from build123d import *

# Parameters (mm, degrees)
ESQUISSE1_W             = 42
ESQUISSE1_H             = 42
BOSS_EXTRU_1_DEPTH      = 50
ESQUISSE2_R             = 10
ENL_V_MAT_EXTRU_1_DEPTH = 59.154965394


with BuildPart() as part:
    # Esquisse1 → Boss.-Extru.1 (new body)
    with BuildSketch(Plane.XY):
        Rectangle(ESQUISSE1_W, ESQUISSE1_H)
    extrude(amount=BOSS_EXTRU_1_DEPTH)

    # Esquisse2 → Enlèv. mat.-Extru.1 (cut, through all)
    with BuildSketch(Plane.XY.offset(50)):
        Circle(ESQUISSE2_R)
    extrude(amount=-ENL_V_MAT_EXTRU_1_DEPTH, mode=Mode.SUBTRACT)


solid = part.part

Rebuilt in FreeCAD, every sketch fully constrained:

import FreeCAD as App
import Part
import Sketcher
Q = App.Units.Quantity

doc = App.newDocument("Part")
body = doc.addObject("PartDesign::Body", "Body")

sketch1 = doc.addObject("Sketcher::SketchObject", "Sketch")
body.addObject(sketch1)
sketch1.AttachmentSupport = (doc.XY_Plane, [""])
sketch1.MapMode = "FlatFace"
sketch1.addGeometry(Part.LineSegment(App.Vector(-21, 21, 0), App.Vector(-21, -21, 0)), False)
sketch1.addGeometry(Part.LineSegment(App.Vector(-21, -21, 0), App.Vector(21, -21, 0)), False)
sketch1.addGeometry(Part.LineSegment(App.Vector(21, -21, 0), App.Vector(21, 21, 0)), False)
sketch1.addGeometry(Part.LineSegment(App.Vector(21, 21, 0), App.Vector(-21, 21, 0)), False)
sketch1.addConstraint(Sketcher.Constraint("Coincident", 0, 2, 1, 1))
sketch1.addConstraint(Sketcher.Constraint("Coincident", 1, 2, 2, 1))
sketch1.addConstraint(Sketcher.Constraint("Coincident", 2, 2, 3, 1))
sketch1.addConstraint(Sketcher.Constraint("Coincident", 3, 2, 0, 1))
sketch1.addConstraint(Sketcher.Constraint("Vertical", 0))
sketch1.addConstraint(Sketcher.Constraint("Horizontal", 1))
sketch1.addConstraint(Sketcher.Constraint("Vertical", 2))
sketch1.addConstraint(Sketcher.Constraint("Horizontal", 3))
sketch1.addConstraint(Sketcher.Constraint("Symmetric", 0, 2, 2, 2, -1, 1))
sketch1.addConstraint(Sketcher.Constraint("Equal", 3, 0))
sketch1.addConstraint(Sketcher.Constraint("DistanceX", 1, 1, 1, 2, Q("42 mm")))
pad1 = doc.addObject("PartDesign::Pad", "Pad")
body.addObject(pad1)
pad1.Profile = sketch1
pad1.Length = 50

sketch2 = doc.addObject("Sketcher::SketchObject", "Sketch001")
body.addObject(sketch2)
sketch2.AttachmentSupport = (doc.XY_Plane, [""])
sketch2.MapMode = "FlatFace"
sketch2.AttachmentOffset = App.Placement(App.Vector(0, 0, 50), App.Rotation())
sketch2.addGeometry(Part.Circle(App.Vector(0, 0, 0), App.Vector(0, 0, 1), 10), False)
sketch2.addConstraint(Sketcher.Constraint("Coincident", 0, 3, -1, 1))
sketch2.addConstraint(Sketcher.Constraint("Diameter", 0, Q("20 mm")))
pocket1 = doc.addObject("PartDesign::Pocket", "Pocket")
body.addObject(pocket1)
pocket1.Profile = sketch2
pocket1.Type = "ThroughAll"

doc.recompute()
